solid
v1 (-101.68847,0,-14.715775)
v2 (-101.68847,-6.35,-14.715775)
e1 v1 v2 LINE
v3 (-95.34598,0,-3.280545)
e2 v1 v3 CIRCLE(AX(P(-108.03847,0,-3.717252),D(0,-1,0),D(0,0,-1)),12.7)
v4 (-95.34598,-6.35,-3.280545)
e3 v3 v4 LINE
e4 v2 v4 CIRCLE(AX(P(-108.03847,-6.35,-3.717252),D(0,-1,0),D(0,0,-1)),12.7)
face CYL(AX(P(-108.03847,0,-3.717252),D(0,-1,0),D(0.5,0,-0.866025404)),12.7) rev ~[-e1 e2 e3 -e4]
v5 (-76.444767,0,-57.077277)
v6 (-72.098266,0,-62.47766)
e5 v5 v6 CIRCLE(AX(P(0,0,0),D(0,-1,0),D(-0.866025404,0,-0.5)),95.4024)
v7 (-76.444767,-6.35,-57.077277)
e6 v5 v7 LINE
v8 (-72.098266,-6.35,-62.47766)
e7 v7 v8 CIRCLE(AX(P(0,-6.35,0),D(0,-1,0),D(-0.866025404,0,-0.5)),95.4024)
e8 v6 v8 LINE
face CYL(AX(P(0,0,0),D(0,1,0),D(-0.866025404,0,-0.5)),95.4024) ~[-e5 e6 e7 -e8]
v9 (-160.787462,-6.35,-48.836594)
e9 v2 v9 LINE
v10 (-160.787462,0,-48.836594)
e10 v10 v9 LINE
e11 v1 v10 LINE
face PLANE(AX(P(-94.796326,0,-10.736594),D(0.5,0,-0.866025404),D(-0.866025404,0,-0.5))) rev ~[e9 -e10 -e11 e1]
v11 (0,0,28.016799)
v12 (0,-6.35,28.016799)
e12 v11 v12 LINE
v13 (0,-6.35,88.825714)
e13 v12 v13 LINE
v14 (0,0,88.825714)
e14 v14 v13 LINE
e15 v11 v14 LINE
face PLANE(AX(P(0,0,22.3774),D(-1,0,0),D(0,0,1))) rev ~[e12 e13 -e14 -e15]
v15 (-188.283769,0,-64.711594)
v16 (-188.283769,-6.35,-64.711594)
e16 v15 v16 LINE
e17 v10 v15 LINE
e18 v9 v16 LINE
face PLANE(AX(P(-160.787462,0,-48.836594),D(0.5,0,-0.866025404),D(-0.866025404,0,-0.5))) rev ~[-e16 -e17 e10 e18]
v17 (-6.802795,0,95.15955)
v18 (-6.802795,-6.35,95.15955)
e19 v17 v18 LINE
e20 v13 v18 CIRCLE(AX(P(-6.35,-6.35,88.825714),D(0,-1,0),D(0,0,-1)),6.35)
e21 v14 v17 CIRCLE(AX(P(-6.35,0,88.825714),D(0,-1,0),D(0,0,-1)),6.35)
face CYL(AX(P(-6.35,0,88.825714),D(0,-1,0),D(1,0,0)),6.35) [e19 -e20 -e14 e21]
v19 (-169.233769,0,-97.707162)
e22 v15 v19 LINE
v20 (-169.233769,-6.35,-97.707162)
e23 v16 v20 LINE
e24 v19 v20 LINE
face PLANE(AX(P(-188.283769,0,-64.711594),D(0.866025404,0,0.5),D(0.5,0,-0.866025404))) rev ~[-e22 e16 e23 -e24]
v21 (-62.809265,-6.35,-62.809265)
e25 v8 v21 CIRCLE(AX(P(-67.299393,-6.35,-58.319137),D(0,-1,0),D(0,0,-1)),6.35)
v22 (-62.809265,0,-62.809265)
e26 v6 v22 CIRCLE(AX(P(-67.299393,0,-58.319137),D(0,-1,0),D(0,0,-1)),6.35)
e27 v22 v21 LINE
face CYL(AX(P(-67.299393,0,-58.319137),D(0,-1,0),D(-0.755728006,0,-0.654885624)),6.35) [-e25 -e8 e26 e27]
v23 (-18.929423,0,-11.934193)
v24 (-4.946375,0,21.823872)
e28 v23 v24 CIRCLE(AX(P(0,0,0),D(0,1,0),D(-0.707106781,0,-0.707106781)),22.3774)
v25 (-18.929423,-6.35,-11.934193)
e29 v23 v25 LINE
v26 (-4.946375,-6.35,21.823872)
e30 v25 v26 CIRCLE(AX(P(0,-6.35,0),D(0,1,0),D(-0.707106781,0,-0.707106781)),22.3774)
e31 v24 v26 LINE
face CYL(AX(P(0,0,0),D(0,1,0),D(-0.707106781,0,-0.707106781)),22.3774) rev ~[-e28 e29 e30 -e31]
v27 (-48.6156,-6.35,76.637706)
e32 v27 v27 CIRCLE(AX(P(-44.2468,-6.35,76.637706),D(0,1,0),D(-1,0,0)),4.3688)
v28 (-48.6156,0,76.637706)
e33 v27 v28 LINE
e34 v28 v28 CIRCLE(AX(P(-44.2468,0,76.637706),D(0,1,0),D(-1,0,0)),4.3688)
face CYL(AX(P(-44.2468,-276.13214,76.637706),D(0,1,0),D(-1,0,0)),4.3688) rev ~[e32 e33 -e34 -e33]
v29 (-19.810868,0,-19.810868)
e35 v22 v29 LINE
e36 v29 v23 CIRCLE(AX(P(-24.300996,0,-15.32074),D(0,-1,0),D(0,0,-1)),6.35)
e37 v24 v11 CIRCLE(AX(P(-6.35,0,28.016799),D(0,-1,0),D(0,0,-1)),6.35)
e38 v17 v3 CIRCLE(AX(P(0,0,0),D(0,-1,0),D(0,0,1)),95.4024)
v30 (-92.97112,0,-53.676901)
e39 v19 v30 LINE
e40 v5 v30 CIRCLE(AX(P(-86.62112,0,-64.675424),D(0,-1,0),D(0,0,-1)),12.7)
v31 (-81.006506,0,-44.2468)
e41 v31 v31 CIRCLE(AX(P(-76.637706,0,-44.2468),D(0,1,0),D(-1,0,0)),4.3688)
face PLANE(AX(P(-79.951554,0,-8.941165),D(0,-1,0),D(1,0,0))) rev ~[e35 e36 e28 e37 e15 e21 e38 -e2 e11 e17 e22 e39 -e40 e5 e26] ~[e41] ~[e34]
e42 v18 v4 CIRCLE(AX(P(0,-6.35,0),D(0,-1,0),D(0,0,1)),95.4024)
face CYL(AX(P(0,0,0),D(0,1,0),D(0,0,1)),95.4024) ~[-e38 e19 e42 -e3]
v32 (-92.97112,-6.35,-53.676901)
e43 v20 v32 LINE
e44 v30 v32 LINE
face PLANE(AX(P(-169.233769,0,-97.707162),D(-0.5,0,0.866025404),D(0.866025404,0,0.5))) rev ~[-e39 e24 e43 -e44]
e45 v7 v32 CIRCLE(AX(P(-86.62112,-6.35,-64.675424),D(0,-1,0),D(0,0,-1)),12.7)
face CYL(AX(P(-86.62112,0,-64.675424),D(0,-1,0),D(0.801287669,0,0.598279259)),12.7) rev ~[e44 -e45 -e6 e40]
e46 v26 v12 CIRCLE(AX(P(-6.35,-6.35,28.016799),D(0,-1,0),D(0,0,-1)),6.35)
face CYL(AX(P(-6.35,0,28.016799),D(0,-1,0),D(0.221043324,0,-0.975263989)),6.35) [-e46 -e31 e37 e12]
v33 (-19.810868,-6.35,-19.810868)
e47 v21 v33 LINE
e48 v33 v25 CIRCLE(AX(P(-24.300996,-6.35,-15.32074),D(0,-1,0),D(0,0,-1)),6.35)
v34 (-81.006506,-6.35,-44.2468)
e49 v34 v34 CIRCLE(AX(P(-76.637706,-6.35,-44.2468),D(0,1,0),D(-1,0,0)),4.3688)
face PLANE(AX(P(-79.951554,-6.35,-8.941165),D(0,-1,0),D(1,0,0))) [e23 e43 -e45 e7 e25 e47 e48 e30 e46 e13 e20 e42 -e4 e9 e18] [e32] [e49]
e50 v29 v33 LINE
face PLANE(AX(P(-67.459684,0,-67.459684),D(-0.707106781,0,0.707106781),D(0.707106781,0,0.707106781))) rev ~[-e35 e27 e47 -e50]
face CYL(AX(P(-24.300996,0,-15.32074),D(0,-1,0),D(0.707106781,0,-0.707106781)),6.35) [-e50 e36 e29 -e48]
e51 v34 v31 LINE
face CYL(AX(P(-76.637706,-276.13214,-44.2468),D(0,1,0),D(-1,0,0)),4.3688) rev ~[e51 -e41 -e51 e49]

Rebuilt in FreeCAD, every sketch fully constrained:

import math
import FreeCAD as App
import Part
import Sketcher

V = App.Vector
Q = App.Units.Quantity


def edges_at(feature, points):
    """Names of the edges that pass closest to the given points."""
    edges = feature.Shape.Edges
    near = lambda p: min(range(len(edges)), key=lambda i: edges[i].distToShape(Part.Vertex(*p))[0])
    return sorted({f"Edge{near(p) + 1}" for p in points})

doc = App.newDocument("Part")
params = doc.addObject("Spreadsheet::Sheet", "Params")
for row, (alias, value) in enumerate([
    ("sketch1_length", "3 in"),
    ("sketch1_radius", "3.756 in"),
    ("sketch1_radius2", "0.881 in"),
    ("sketch1_length2", "1.5 in"),
    ("sketch1_length3", "1.25 in"),
    ("pad1_length", "0.25 in"),
    ("sketch2_diameter", "0.344 in"),
    ("hole_diameter", "0.344 in"),
    ("fillet_radius", "0.5 in"),
    ("fillet2_radius", "0.25 in"),
], start=1):
    params.set(f"A{row}", alias)
    params.set(f"B{row}", "=" + value)
    params.setAlias(f"B{row}", alias)

body = doc.addObject("PartDesign::Body", "Body")

sketch1 = body.newObject("Sketcher::SketchObject", "Sketch")
sketch1.AttachmentSupport = (doc.getObject("XZ_Plane"), [""])
sketch1.MapMode = "FlatFace"
sketch1.addGeometry([
    Part.ArcOfCircle(Part.Circle(V(0, 0, 0), V(0, 0, 1), 95.4024), math.radians(-150), math.radians(-135)),
    Part.LineSegment(V(-67.459684, -67.459684, 0), V(-15.823211, -15.823211, 0)),
    Part.ArcOfCircle(Part.Circle(V(0, 0, 0), V(0, 0, 1), 22.3774), math.radians(90), math.radians(225)),
    Part.LineSegment(V(0, 22.3774, 0), V(0, 95.4024, 0)),
    Part.ArcOfCircle(Part.Circle(V(0, 0, 0), V(0, 0, 1), 95.4024), math.radians(90), math.radians(186.461761)),
    Part.LineSegment(V(-94.796326, -10.736594, 0), V(-160.787462, -48.836594, 0)),
    Part.LineSegment(V(-160.787462, -48.836594, 0), V(-188.283769, -64.711594, 0)),
    Part.LineSegment(V(-188.283769, -64.711594, 0), V(-169.233769, -97.707162, 0)),
    Part.LineSegment(V(-169.233769, -97.707162, 0), V(-82.620902, -47.7012, 0)),
], False)
sketch1.addConstraint([
    Sketcher.Constraint("Coincident", 0, 2, 1, 1),
    Sketcher.Constraint("Coincident", 1, 2, 2, 2),
    Sketcher.Constraint("Coincident", 2, 1, 3, 1),
    Sketcher.Constraint("Coincident", 3, 2, 4, 1),
    Sketcher.Constraint("Coincident", 4, 2, 5, 1),
    Sketcher.Constraint("Coincident", 5, 2, 6, 1),
    Sketcher.Constraint("Coincident", 6, 2, 7, 1),
    Sketcher.Constraint("Coincident", 7, 2, 8, 1),
    Sketcher.Constraint("Coincident", 8, 2, 0, 1),
    Sketcher.Constraint("Vertical", 3),
    Sketcher.Constraint("Coincident", 0, 3, -1, 1),
    Sketcher.Constraint("Coincident", 2, 3, -1, 1),
    Sketcher.Constraint("Coincident", 4, 3, -1, 1),
    Sketcher.Constraint("Equal", 0, 4),
    Sketcher.Constraint("PointOnObject", 2, 1, -2),
    Sketcher.Constraint("Parallel", 5, 6),
    Sketcher.Constraint("Perpendicular", 6, 7),
    Sketcher.Constraint("Perpendicular", 7, 8),
    Sketcher.Constraint("Distance", 5, Q("3 in")),
    Sketcher.Constraint("Angle", 1, Q("45 deg")),
    Sketcher.Constraint("Angle", 5, Q("-150 deg")),
    Sketcher.Constraint("Radius", 0, Q("3.756 in")),
    Sketcher.Constraint("Radius", 2, Q("0.881 in")),
    Sketcher.Constraint("Distance", 7, Q("1.5 in")),
    Sketcher.Constraint("Distance", 6, Q("1.25 in")),
    Sketcher.Constraint("DistanceY", 8, 2, -1, 1, Q("1.878 in")),
    Sketcher.Constraint("DistanceX", 1, 2, -1, 1, Q("15.823211 mm")),
])
sketch1.setExpression("Constraints[18]", "Params.sketch1_length")
sketch1.setExpression("Constraints[21]", "Params.sketch1_radius")
sketch1.setExpression("Constraints[22]", "Params.sketch1_radius2")
sketch1.setExpression("Constraints[23]", "Params.sketch1_length2")
sketch1.setExpression("Constraints[24]", "Params.sketch1_length3")
pad1 = body.newObject("PartDesign::Pad", "Pad")
pad1.Profile = sketch1
pad1.setExpression("Length", "Params.pad1_length")

sketch2 = body.newObject("Sketcher::SketchObject", "Sketch001")
sketch2.AttachmentSupport = (doc.getObject("XZ_Plane"), [""])
sketch2.MapMode = "FlatFace"
sketch2.AttachmentOffset = App.Placement(V(0, 0, 0.25 * 25.4), App.Rotation())
sketch2.addGeometry([
    Part.Circle(V(-44.2468, 76.637706, 0), V(0, 0, 1), 4.3688),
    Part.Circle(V(-76.637706, -44.2468, 0), V(0, 0, 1), 4.3688),
], False)
sketch2.addConstraint([
    Sketcher.Constraint("Equal", 0, 1),
    Sketcher.Constraint("Diameter", 0, Q("0.344 in")),
    Sketcher.Constraint("DistanceX", 0, 3, -1, 1, Q("1.742 in")),
    Sketcher.Constraint("DistanceY", 1, 3, -1, 1, Q("1.742 in")),
    Sketcher.Constraint("DistanceY", -1, 1, 0, 3, Q("76.637706 mm")),
    Sketcher.Constraint("DistanceX", 1, 3, -1, 1, Q("76.637706 mm")),
])
sketch2.setExpression("Constraints[1]", "Params.sketch2_diameter")
doc.recompute()
hole = body.newObject("PartDesign::Hole", "Hole")
hole.Profile = sketch2
hole.ThreadType = "None"
hole.setExpression("Diameter", "Params.hole_diameter")
hole.DepthType = "ThroughAll"
doc.recompute()

fillet = body.newObject("PartDesign::Fillet", "Fillet")
fillet.Base = (hole, edges_at(hole, [(-82.621, -3.175, -47.701), (-94.796, -3.175, -10.737)]))
fillet.setExpression("Radius", "Params.fillet_radius")
doc.recompute()

fillet2 = body.newObject("PartDesign::Fillet", "Fillet001")
fillet2.Base = (fillet, edges_at(fillet, [
    (-67.46, -3.175, -67.46),
    (-15.823, -3.175, -15.823),
    (0, -3.175, 22.377),
    (0, -3.175, 95.402),
]))
fillet2.setExpression("Radius", "Params.fillet2_radius")

doc.recompute()
